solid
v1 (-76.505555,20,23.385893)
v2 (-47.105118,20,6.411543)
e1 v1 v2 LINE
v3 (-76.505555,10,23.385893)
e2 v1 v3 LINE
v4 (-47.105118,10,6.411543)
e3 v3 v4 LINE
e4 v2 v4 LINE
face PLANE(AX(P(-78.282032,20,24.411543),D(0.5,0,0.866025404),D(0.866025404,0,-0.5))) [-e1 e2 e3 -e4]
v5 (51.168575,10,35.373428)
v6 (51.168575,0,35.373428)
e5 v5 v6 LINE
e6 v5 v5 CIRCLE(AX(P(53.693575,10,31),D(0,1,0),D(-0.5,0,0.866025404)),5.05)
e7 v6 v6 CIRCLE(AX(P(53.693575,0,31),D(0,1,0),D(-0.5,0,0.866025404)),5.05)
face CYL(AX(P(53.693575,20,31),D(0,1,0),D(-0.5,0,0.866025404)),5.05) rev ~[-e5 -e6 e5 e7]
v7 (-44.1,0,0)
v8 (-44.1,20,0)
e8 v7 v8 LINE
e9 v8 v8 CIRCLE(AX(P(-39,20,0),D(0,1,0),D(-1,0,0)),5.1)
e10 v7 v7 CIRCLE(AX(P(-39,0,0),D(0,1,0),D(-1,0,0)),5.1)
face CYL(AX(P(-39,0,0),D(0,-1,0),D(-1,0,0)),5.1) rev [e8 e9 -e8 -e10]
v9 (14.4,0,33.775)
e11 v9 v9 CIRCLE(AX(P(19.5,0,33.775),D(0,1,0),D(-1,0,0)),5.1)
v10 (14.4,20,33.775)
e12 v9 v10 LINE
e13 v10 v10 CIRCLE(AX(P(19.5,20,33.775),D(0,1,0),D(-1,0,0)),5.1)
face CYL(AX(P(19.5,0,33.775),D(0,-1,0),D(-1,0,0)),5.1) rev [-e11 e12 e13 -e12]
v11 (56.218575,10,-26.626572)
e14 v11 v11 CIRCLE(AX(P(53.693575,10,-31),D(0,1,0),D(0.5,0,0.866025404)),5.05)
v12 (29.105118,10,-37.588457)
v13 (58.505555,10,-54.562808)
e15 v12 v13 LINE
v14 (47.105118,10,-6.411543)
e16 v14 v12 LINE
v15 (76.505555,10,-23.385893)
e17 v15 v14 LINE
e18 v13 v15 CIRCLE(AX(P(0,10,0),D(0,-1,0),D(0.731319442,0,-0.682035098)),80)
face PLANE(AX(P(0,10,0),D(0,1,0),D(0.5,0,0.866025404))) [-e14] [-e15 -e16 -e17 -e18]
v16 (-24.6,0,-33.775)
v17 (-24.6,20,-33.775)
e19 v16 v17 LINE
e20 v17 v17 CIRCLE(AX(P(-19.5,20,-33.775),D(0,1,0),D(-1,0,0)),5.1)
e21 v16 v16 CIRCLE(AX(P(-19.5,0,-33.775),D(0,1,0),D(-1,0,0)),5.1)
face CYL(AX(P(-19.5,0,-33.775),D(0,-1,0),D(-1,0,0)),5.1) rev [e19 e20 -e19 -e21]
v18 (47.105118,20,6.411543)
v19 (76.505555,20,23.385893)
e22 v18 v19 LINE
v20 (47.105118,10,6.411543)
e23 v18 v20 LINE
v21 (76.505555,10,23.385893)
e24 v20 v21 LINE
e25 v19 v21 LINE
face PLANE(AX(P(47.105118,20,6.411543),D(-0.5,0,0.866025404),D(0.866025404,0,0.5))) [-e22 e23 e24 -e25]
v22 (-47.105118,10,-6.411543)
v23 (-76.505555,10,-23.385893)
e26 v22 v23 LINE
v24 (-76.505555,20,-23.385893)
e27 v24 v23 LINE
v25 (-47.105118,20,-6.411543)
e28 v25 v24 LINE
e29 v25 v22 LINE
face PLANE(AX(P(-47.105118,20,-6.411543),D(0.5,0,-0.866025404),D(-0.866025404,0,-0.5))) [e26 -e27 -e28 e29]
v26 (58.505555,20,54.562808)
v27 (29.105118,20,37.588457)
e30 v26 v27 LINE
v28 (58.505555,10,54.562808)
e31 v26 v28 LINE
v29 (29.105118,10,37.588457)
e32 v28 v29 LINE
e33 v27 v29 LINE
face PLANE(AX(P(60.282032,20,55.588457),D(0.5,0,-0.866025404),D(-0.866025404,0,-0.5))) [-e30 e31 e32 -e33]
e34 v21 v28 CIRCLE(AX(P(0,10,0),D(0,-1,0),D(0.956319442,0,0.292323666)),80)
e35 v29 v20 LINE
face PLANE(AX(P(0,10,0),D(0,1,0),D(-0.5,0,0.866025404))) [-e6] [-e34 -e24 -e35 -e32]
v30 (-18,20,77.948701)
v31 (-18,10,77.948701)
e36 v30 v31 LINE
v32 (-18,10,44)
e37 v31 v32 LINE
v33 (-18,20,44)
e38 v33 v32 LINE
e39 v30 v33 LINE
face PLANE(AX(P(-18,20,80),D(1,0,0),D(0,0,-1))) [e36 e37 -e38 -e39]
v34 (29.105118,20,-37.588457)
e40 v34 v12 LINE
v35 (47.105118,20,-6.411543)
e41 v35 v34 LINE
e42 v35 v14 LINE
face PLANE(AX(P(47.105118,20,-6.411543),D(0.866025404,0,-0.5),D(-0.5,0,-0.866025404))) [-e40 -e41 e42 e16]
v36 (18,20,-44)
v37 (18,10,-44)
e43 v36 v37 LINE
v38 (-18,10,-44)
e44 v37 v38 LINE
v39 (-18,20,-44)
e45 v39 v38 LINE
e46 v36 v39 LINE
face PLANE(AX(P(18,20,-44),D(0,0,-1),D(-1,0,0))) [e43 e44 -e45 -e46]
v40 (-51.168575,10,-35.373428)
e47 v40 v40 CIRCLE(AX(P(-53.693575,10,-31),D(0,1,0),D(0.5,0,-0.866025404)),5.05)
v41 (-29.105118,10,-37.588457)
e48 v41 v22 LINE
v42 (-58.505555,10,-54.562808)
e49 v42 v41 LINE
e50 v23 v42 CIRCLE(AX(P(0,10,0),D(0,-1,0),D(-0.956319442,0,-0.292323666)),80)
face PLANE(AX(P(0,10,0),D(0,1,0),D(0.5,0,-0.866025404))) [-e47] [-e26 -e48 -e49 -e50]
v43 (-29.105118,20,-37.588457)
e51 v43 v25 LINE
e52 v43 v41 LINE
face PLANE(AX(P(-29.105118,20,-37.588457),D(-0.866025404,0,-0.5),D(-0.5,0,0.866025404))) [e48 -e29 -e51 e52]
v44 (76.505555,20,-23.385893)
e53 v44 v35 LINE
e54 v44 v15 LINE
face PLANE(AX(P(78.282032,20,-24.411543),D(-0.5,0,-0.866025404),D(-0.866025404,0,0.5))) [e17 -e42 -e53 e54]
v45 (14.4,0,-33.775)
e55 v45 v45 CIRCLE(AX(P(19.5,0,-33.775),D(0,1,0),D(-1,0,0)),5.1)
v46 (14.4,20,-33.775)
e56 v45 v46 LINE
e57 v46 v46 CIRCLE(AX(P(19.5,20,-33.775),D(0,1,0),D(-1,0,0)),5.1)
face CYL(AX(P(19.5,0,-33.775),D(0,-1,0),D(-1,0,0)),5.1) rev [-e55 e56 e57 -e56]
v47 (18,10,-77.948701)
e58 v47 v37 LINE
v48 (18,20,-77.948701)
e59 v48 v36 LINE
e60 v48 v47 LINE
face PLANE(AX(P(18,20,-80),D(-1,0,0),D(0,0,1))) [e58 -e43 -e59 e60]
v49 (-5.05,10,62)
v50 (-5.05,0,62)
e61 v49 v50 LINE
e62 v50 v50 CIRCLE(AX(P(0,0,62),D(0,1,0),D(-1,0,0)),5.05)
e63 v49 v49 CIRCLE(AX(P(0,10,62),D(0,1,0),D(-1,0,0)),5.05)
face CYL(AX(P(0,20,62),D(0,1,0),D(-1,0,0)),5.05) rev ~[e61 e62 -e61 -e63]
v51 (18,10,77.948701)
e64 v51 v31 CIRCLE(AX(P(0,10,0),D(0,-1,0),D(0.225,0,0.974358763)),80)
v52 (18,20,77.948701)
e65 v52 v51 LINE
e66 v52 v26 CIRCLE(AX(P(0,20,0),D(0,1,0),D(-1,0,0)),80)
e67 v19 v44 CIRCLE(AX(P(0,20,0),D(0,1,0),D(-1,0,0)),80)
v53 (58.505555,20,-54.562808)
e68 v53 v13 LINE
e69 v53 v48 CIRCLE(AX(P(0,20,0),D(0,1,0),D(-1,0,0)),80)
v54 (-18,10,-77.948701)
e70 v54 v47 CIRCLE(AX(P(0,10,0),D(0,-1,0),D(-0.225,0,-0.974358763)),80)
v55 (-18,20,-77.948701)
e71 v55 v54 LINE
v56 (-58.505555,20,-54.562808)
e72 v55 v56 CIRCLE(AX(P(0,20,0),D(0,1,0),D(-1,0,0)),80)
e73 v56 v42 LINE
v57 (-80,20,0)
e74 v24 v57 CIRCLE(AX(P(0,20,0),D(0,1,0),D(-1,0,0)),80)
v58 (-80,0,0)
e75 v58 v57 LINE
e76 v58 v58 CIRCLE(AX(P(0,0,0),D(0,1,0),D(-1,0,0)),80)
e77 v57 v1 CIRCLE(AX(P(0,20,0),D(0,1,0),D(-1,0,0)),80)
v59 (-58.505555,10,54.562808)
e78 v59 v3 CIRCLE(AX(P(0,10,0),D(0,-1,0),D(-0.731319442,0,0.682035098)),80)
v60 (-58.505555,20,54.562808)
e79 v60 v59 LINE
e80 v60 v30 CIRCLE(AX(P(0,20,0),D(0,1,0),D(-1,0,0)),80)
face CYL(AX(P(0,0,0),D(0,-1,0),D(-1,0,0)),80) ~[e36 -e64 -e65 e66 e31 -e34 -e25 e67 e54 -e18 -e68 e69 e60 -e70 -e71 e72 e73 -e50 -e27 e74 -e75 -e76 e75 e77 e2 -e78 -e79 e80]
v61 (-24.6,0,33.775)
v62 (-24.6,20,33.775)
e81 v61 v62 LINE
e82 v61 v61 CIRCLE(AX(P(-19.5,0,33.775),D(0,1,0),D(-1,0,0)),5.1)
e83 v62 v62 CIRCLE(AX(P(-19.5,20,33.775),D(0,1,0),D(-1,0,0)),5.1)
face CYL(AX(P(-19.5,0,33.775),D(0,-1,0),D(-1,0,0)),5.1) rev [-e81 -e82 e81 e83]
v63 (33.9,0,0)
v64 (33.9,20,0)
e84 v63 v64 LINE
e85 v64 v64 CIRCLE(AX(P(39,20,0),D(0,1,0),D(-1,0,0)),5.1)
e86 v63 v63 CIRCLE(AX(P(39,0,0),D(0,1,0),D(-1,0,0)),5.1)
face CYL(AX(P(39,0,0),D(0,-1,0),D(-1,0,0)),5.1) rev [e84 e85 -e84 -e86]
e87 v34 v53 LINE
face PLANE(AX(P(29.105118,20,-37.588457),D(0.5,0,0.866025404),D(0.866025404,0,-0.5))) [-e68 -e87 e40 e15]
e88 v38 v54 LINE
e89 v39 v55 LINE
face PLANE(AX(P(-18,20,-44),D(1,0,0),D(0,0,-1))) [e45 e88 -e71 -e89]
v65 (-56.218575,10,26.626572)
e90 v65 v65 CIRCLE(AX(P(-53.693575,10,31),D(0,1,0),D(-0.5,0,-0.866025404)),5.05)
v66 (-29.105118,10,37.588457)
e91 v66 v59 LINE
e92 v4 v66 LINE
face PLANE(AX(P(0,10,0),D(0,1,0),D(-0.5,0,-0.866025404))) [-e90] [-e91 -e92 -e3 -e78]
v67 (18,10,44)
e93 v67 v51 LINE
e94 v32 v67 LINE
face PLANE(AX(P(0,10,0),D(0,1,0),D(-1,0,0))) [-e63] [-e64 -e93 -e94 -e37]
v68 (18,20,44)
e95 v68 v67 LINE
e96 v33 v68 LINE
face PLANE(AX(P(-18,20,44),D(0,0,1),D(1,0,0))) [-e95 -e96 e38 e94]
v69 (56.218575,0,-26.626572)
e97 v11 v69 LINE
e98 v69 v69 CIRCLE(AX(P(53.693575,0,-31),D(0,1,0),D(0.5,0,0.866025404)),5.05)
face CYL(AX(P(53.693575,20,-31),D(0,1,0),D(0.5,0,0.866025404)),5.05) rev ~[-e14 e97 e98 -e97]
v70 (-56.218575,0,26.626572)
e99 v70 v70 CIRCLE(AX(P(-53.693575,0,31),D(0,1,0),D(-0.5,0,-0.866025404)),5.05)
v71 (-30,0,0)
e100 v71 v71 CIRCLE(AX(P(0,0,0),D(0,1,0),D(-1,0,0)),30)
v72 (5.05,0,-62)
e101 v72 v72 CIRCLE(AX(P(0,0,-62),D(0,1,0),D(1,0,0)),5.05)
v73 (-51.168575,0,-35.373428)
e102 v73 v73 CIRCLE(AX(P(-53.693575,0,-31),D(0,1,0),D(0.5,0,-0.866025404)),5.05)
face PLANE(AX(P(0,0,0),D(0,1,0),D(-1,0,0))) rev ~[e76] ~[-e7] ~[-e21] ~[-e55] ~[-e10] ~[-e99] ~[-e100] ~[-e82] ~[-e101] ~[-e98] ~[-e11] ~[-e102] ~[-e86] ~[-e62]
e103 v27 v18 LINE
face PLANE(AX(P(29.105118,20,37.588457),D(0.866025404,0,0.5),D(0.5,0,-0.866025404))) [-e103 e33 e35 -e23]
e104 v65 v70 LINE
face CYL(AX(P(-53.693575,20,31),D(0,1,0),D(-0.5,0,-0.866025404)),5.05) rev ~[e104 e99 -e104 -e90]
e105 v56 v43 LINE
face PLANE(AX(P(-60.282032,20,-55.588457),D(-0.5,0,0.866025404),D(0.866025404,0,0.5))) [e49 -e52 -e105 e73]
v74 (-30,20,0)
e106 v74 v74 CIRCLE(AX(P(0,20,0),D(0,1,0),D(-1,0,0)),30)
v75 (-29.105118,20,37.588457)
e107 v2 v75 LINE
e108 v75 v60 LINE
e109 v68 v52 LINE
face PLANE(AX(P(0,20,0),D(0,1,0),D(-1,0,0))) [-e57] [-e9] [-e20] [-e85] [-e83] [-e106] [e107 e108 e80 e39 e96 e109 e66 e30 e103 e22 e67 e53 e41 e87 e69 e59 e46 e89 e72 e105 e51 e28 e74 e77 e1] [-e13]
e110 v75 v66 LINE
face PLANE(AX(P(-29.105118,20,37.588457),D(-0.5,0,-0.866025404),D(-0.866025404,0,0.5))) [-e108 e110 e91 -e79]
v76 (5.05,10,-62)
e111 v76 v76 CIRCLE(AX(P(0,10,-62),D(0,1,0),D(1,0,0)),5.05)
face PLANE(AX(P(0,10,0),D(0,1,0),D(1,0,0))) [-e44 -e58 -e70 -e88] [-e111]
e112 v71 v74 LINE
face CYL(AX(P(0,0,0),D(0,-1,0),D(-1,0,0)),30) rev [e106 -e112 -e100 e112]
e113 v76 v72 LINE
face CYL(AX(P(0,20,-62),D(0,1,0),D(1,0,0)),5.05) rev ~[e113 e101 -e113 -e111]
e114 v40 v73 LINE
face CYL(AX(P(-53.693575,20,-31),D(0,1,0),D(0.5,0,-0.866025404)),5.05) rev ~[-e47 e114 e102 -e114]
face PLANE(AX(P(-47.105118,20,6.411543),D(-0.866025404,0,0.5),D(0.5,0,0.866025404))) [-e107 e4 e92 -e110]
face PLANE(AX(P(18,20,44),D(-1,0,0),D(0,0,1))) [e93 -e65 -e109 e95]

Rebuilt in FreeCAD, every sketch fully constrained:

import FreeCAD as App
import Part
import Sketcher
Q = App.Units.Quantity


def add_polygon(sketch, points):
    """Adds a closed chain of lines whose ends are joined by coincident constraints."""
    first, n = sketch.GeometryCount, len(points)
    for a, b in zip(points, points[1:] + points[:1]):
        sketch.addGeometry(Part.LineSegment(App.Vector(*a, 0), App.Vector(*b, 0)), False)
    for i in range(n):
        sketch.addConstraint(Sketcher.Constraint("Coincident", first + i, 2, first + (i + 1) % n, 1))

doc = App.newDocument("Part")
body = doc.addObject("PartDesign::Body", "Body")

# Sketch on XZ plane
sketch1 = body.newObject("Sketcher::SketchObject", "Sketch")
sketch1.AttachmentSupport = (doc.getObject("XZ_Plane"), [""])
sketch1.MapMode = "FlatFace"
sketch1.addGeometry([
    Part.Circle(App.Vector(0, 0, 0), App.Vector(0, 0, 1), 80),  # 0
    Part.Circle(App.Vector(20, -34, 0), App.Vector(0, 0, 1), 5),  # 1
    Part.Circle(App.Vector(-20, -34, 0), App.Vector(0, 0, 1), 5),  # 2
    Part.Circle(App.Vector(39, 0, 0), App.Vector(0, 0, 1), 5),  # 3
    Part.Circle(App.Vector(20, 34, 0), App.Vector(0, 0, 1), 5),  # 4
    Part.Circle(App.Vector(0, 0, 0), App.Vector(0, 0, 1), 30),  # 5
    Part.Circle(App.Vector(-39, 0, 0), App.Vector(0, 0, 1), 5),  # 6
    Part.Circle(App.Vector(-20, 34, 0), App.Vector(0, 0, 1), 5),  # 7
], False)
sketch1.addConstraint([
    Sketcher.Constraint("Coincident", 0, 3, -1, 1),
    Sketcher.Constraint("Coincident", 5, 3, -1, 1),
    Sketcher.Constraint("Equal", 1, 2),
    Sketcher.Constraint("Equal", 2, 3),
    Sketcher.Constraint("Equal", 3, 4),
    Sketcher.Constraint("Equal", 4, 6),
    Sketcher.Constraint("Equal", 6, 7),
    Sketcher.Constraint("Symmetric", 2, 3, 4, 3, -1, 1),
    Sketcher.Constraint("Symmetric", 3, 3, 6, 3, -1, 1),
    Sketcher.Constraint("Symmetric", 1, 3, 7, 3, -1, 1),
    Sketcher.Constraint("Symmetric", 1, 3, 2, 3, -2),
    Sketcher.Constraint("PointOnObject", 3, 3, -1),
    Sketcher.Constraint("Diameter", 0, Q("160 mm")),
    Sketcher.Constraint("Diameter", 5, Q("60 mm")),
    Sketcher.Constraint("Diameter", 1, Q("10.2 mm")),
    Sketcher.Constraint("DistanceX", -1, 1, 3, 3, Q("39 mm")),
    Sketcher.Constraint("DistanceX", 2, 3, 1, 3, Q("39 mm")),
    Sketcher.Constraint("DistanceY", 1, 3, 4, 3, Q("67.55 mm")),
])
pad1 = body.newObject("PartDesign::Pad", "Pad")
pad1.Profile = sketch1
pad1.Length = 20
pad1.Reversed = True

# Sketch on XZ plane
sketch2 = body.newObject("Sketcher::SketchObject", "Sketch001")
sketch2.AttachmentSupport = (doc.getObject("XZ_Plane"), [""])
sketch2.MapMode = "FlatFace"
sketch2.AttachmentOffset = App.Placement(App.Vector(0, 0, -20), App.Rotation())
add_polygon(sketch2, [(18, -80), (-18, -80), (-18, -44), (18, -44)])  # lines 0-3
sketch2.addGeometry(Part.Circle(App.Vector(0, -62, 0), App.Vector(0, 0, 1), 5), False)  # 4
sketch2.addConstraint([
    Sketcher.Constraint("Horizontal", 0),
    Sketcher.Constraint("Vertical", 1),
    Sketcher.Constraint("Horizontal", 2),
    Sketcher.Constraint("Vertical", 3),
    Sketcher.Constraint("PointOnObject", 4, 3, -2),
    Sketcher.Constraint("Equal", 2, 1),
    Sketcher.Constraint("Diameter", 4, Q("10.1 mm")),
    Sketcher.Constraint("DistanceX", 0, 2, 0, 1, Q("36 mm")),
    Sketcher.Constraint("DistanceX", 0, 2, -1, 1, Q("18 mm")),
    Sketcher.Constraint("DistanceY", 0, 2, 4, 3, Q("18 mm")),
    Sketcher.Constraint("DistanceY", 4, 3, -1, 1, Q("62 mm")),
])
pocket1 = body.newObject("PartDesign::Pocket", "Pocket")
pocket1.Profile = sketch2
pocket1.Length = 10
pocket1.Reversed = True

# Sketch on XZ plane
sketch3 = body.newObject("Sketcher::SketchObject", "Sketch002")
sketch3.AttachmentSupport = (doc.getObject("XZ_Plane"), [""])
sketch3.MapMode = "FlatFace"
sketch3.AttachmentOffset = App.Placement(App.Vector(0, 0, -20), App.Rotation())
sketch3.addGeometry(Part.Circle(App.Vector(0, -62, 0), App.Vector(0, 0, 1), 5), False)
sketch3.addConstraint([
    Sketcher.Constraint("PointOnObject", 0, 3, -2),
    Sketcher.Constraint("Diameter", 0, Q("10.1 mm")),
    Sketcher.Constraint("DistanceY", 0, 3, -1, 1, Q("62 mm")),
])
pocket2 = body.newObject("PartDesign::Pocket", "Pocket001")
pocket2.Profile = sketch3
pocket2.Type = "ThroughAll"
pocket2.Reversed = True
doc.recompute()

polarpattern = body.newObject("PartDesign::PolarPattern", "PolarPattern")
polarpattern.Originals = [pocket1, pocket2]
polarpattern.Axis = (doc.getObject("Y_Axis"), [""])
polarpattern.Angle = 360
polarpattern.Occurrences = 6
body.Tip = polarpattern

doc.recompute()
